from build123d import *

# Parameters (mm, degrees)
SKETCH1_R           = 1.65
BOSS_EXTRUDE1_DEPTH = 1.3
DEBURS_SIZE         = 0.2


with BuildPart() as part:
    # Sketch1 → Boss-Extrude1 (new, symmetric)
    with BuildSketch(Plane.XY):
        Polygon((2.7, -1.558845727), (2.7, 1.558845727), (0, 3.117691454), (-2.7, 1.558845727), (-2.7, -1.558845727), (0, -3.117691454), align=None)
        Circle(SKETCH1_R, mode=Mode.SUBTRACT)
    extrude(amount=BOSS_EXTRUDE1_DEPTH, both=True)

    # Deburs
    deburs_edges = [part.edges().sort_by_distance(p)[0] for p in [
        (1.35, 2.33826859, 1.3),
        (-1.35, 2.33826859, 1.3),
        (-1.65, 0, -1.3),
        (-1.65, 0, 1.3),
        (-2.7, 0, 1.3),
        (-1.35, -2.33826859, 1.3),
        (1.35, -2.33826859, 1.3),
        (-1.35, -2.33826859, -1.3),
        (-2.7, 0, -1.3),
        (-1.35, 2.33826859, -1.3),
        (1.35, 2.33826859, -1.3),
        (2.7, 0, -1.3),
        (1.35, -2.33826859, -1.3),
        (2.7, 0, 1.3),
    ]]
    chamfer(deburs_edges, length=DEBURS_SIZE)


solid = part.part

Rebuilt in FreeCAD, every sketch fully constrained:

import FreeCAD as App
import Part
import Sketcher
Q = App.Units.Quantity


def edges_at(feature, points):
    """Names of the edges that pass closest to the given points."""
    edges = feature.Shape.Edges
    near = lambda p: min(range(len(edges)), key=lambda i: edges[i].distToShape(Part.Vertex(*p))[0])
    return sorted({f"Edge{near(p) + 1}" for p in points})

doc = App.newDocument("Part")
body = doc.addObject("PartDesign::Body", "Body")

# Sketch on XY plane
sketch1 = body.newObject("Sketcher::SketchObject", "Sketch")
sketch1.AttachmentSupport = (doc.getObject("XY_Plane"), [""])
sketch1.MapMode = "FlatFace"
sketch1.addGeometry([
    Part.LineSegment(App.Vector(2.7, -1.6, 0), App.Vector(2.7, 1.6, 0)),  # 0
    Part.LineSegment(App.Vector(2.7, 1.6, 0), App.Vector(0, 3.1, 0)),  # 1
    Part.LineSegment(App.Vector(0, 3.1, 0), App.Vector(-2.7, 1.6, 0)),  # 2
    Part.LineSegment(App.Vector(-2.7, 1.6, 0), App.Vector(-2.7, -1.6, 0)),  # 3
    Part.LineSegment(App.Vector(-2.7, -1.6, 0), App.Vector(0, -3.1, 0)),  # 4
    Part.LineSegment(App.Vector(0, -3.1, 0), App.Vector(2.7, -1.6, 0)),  # 5
    Part.Circle(App.Vector(0, 0, 0), App.Vector(0, 0, 1), 1.6),  # 6
], False)
sketch1.addConstraint([
    Sketcher.Constraint("Coincident", 0, 2, 1, 1),
    Sketcher.Constraint("Coincident", 1, 2, 2, 1),
    Sketcher.Constraint("Coincident", 2, 2, 3, 1),
    Sketcher.Constraint("Coincident", 3, 2, 4, 1),
    Sketcher.Constraint("Coincident", 4, 2, 5, 1),
    Sketcher.Constraint("Coincident", 5, 2, 0, 1),
    Sketcher.Constraint("Vertical", 0),
    Sketcher.Constraint("Vertical", 3),
    Sketcher.Constraint("Coincident", 6, 3, -1, 1),
    Sketcher.Constraint("Symmetric", 0, 2, 3, 2, -1, 1),
    Sketcher.Constraint("Symmetric", 1, 2, 4, 2, -1, 1),
    Sketcher.Constraint("PointOnObject", 1, 2, -2),
    Sketcher.Constraint("Parallel", 2, 5),
    Sketcher.Constraint("Horizontal", 0, 2, 2, 2),
    Sketcher.Constraint("Diameter", 6, 3.3),
    Sketcher.Constraint("Angle", 1, Q("150 deg")),
    Sketcher.Constraint("DistanceX", -1, 1, 0, 2, 2.7),
    Sketcher.Constraint("DistanceY", 0, 1, 0, 2, 3.117691),
])
pad1 = body.newObject("PartDesign::Pad", "Pad")
pad1.Profile = sketch1
pad1.Length = 2.6
pad1.Midplane = True
doc.recompute()

chamfer = body.newObject("PartDesign::Chamfer", "Chamfer")
chamfer.Base = (pad1, edges_at(pad1, [
    (1.35, 2.338, 1.3),
    (-1.35, 2.338, 1.3),
    (-1.65, 0, -1.3),
    (-1.65, 0, 1.3),
    (-2.7, 0, 1.3),
    (-1.35, -2.338, 1.3),
    (1.35, -2.338, 1.3),
    (-1.35, -2.338, -1.3),
    (-2.7, 0, -1.3),
    (-1.35, 2.338, -1.3),
    (1.35, 2.338, -1.3),
    (2.7, 0, -1.3),
    (1.35, -2.338, -1.3),
    (2.7, 0, 1.3),
]))
chamfer.Size = 0.2

doc.recompute()
